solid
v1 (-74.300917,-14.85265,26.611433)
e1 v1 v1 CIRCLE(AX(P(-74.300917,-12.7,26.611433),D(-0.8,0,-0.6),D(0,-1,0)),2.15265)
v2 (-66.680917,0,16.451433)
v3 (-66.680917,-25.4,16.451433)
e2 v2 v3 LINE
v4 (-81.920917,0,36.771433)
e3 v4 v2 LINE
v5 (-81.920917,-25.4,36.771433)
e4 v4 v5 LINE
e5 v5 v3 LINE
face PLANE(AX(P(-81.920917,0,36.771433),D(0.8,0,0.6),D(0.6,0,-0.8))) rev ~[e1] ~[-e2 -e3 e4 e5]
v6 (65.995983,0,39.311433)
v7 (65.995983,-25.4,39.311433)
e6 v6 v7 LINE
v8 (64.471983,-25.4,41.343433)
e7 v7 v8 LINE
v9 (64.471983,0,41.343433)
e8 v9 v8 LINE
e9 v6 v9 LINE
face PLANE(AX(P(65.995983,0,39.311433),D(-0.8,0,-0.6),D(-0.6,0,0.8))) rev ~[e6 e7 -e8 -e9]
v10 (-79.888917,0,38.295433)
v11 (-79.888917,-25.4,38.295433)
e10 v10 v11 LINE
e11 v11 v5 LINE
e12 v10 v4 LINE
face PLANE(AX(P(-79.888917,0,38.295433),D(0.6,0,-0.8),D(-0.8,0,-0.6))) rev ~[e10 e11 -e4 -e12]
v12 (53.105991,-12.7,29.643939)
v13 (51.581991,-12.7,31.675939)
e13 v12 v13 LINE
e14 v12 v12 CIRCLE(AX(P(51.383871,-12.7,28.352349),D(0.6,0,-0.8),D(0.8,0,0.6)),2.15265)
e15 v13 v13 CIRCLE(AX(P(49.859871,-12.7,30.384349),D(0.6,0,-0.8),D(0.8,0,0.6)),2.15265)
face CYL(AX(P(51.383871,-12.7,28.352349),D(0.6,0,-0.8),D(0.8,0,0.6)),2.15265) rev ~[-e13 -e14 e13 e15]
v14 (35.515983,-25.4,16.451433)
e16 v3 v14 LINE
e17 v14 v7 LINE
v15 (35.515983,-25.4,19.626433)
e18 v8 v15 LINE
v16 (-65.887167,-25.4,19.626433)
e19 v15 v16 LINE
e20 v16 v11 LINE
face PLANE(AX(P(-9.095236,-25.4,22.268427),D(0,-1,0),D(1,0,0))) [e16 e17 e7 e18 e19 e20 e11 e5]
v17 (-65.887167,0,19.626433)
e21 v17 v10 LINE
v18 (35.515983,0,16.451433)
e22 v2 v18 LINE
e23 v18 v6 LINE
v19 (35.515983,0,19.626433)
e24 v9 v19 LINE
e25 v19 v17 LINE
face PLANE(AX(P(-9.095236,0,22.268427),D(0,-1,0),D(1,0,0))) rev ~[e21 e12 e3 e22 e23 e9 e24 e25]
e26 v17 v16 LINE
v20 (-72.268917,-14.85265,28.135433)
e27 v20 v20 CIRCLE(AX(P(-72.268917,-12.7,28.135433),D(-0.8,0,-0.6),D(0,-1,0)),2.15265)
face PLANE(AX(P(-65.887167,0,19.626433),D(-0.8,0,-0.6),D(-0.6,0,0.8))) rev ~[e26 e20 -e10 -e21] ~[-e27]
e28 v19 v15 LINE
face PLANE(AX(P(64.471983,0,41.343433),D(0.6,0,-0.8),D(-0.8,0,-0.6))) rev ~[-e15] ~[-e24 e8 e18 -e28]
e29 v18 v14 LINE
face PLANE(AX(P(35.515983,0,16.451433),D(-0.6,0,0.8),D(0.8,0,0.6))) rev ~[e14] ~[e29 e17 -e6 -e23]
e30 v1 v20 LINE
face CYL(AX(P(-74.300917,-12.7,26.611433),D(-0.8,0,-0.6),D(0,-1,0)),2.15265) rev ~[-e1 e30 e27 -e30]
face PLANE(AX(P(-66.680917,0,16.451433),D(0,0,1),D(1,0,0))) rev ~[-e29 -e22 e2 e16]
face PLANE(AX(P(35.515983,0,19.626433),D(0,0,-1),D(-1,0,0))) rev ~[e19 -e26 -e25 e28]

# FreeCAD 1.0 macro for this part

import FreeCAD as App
import Part
import Sketcher
Q = App.Units.Quantity


def add_polygon(sketch, points):
    """Adds a closed chain of lines whose ends are joined by coincident constraints."""
    first, n = sketch.GeometryCount, len(points)
    for a, b in zip(points, points[1:] + points[:1]):
        sketch.addGeometry(Part.LineSegment(App.Vector(*a, 0), App.Vector(*b, 0)), False)
    for i in range(n):
        sketch.addConstraint(Sketcher.Constraint("Coincident", first + i, 2, first + (i + 1) % n, 1))

doc = App.newDocument("Part")
body = doc.addObject("PartDesign::Body", "Body")

sketch1 = body.newObject("Sketcher::SketchObject", "Sketch")
sketch1.AttachmentSupport = (doc.getObject("XZ_Plane"), [""])
sketch1.MapMode = "FlatFace"
add_polygon(sketch1, [(-66.680917, 16.451433), (35.515983, 16.451433), (65.995983, 39.311433), (64.471983, 41.343433), (35.515983, 19.626433), (-65.887167, 19.626433), (-79.888917, 38.295433), (-81.920917, 36.771433)])
sketch1.addConstraint([
    Sketcher.Constraint("Horizontal", 0),
    Sketcher.Constraint("Horizontal", 4),
    Sketcher.Constraint("Perpendicular", 1, 2),
    Sketcher.Constraint("Perpendicular", 2, 3),
    Sketcher.Constraint("Perpendicular", 3, 5),
    Sketcher.Constraint("Perpendicular", 5, 6),
    Sketcher.Constraint("Perpendicular", 6, 7),
    Sketcher.Constraint("Vertical", 0, 2, 3, 2),
    Sketcher.Constraint("Equal", 2, 6),
    Sketcher.Constraint("Distance", 7, Q("1 in")),
    Sketcher.Constraint("Distance", 1, Q("1.5 in")),
    Sketcher.Constraint("Distance", 2, Q("0.1 in")),
    Sketcher.Constraint("DistanceX", 0, 2, 1, 2, Q("1.2 in")),
    Sketcher.Constraint("DistanceX", 0, 1, 0, 2, Q("4.0235 in")),
    Sketcher.Constraint("DistanceX", -1, 1, 0, 2, Q("35.515983 mm")),
    Sketcher.Constraint("DistanceY", -1, 1, 0, 2, Q("16.451433 mm")),
])
pad1 = body.newObject("PartDesign::Pad", "Pad")
pad1.Profile = sketch1
pad1.Length = Q("1 in")

sketch2 = body.newObject("Sketcher::SketchObject", "Sketch001")
sketch2.Placement = App.Placement(App.Vector(4.889066, 0, -6.518754), App.Rotation(App.Vector(0.8, 0, 0.6), App.Vector(0, -1, 0), App.Vector(0.6, 0, -0.8), "ZXY"))
sketch2.addGeometry(Part.Circle(App.Vector(58.118506, 12.7, 0), App.Vector(0, 0, 1), 2.15265), False)
sketch2.addConstraint([
    Sketcher.Constraint("Diameter", 0, Q("0.1695 in")),
    Sketcher.Constraint("DistanceY", -1, 1, 0, 3, Q("0.5 in")),
    Sketcher.Constraint("DistanceX", -1, 1, 0, 3, Q("58.118506 mm")),
])
pocket1 = body.newObject("PartDesign::Pocket", "Pocket")
pocket1.Profile = sketch2
pocket1.Length = Q("1 in")

sketch3 = body.newObject("Sketcher::SketchObject", "Sketch002")
sketch3.Placement = App.Placement(App.Vector(-34.779099, 0, -26.084324), App.Rotation(App.Vector(0, -1, 0), App.Vector(-0.6, 0, 0.8), App.Vector(-0.8, 0, -0.6), "ZXY"))
sketch3.addGeometry(Part.Circle(App.Vector(12.7, 65.869697, 0), App.Vector(0, 0, 1), 2.15265), False)
sketch3.addConstraint([
    Sketcher.Constraint("Diameter", 0, Q("0.1695 in")),
    Sketcher.Constraint("DistanceX", -1, 1, 0, 3, Q("0.5 in")),
    Sketcher.Constraint("DistanceY", -1, 1, 0, 3, Q("65.869697 mm")),
])
pocket2 = body.newObject("PartDesign::Pocket", "Pocket001")
pocket2.Profile = sketch3
pocket2.Length = Q("1 in")

doc.recompute()
